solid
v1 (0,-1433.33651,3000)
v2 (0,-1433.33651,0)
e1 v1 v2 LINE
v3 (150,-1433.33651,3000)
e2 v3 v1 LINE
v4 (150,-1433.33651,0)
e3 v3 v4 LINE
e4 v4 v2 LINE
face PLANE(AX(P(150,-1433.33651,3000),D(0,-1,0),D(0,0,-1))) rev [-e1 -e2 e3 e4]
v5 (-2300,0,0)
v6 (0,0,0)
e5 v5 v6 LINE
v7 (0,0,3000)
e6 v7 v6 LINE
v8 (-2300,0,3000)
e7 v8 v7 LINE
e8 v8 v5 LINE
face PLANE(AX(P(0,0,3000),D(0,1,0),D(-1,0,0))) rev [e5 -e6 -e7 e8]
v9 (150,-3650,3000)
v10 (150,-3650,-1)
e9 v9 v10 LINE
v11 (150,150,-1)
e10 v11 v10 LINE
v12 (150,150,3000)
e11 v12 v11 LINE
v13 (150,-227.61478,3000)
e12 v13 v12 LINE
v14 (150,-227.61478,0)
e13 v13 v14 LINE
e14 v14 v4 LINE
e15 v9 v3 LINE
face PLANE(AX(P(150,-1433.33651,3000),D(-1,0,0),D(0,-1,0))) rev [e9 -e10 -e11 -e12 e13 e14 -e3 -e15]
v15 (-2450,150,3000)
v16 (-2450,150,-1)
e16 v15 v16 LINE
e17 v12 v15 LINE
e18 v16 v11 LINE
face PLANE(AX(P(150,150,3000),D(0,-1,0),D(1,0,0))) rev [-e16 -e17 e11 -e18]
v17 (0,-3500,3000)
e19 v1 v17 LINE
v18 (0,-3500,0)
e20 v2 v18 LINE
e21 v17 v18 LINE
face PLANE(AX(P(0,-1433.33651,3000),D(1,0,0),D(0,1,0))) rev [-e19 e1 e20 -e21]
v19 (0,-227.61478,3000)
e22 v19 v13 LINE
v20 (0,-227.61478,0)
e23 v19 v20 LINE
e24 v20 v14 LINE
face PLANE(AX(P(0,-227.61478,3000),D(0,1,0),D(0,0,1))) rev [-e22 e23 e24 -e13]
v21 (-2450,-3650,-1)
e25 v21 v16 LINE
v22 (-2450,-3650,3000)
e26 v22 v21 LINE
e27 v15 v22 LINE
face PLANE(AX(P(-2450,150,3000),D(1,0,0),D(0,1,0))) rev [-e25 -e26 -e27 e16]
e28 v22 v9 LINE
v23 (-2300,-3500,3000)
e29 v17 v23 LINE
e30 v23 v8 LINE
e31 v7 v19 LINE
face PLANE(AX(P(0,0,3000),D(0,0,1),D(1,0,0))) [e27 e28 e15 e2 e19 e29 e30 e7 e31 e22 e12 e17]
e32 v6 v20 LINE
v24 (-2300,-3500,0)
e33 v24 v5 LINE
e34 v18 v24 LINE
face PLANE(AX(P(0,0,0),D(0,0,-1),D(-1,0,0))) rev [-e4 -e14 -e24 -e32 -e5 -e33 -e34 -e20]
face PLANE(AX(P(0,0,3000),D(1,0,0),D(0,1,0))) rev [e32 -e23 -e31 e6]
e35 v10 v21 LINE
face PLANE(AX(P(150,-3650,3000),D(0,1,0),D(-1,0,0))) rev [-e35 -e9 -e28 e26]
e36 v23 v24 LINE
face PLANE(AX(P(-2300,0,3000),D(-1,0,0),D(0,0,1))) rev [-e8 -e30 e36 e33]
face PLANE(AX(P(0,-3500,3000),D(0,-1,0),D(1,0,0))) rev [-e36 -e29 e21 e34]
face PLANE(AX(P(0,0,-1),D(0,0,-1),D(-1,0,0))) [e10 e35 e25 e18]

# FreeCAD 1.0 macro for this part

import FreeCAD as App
import Part
import Sketcher

V = App.Vector


def add_polygon(sketch, points):
    """Adds a closed chain of lines whose ends are joined by coincident constraints."""
    first, n = sketch.GeometryCount, len(points)
    for a, b in zip(points, points[1:] + points[:1]):
        sketch.addGeometry(Part.LineSegment(App.Vector(*a, 0), App.Vector(*b, 0)), False)
    for i in range(n):
        sketch.addConstraint(Sketcher.Constraint("Coincident", first + i, 2, first + (i + 1) % n, 1))

doc = App.newDocument("Part")
body = doc.addObject("PartDesign::Body", "Body")

sketch1 = body.newObject("Sketcher::SketchObject", "Sketch")
sketch1.AttachmentSupport = (doc.getObject("XY_Plane"), [""])
sketch1.MapMode = "FlatFace"
add_polygon(sketch1, [(0, -228), (150, -228), (150, 150), (-2450, 150), (-2450, -3650), (150, -3650), (150, -1433), (0, -1433), (0, -3500), (-2300, -3500), (-2300, 0), (0, 0)])
sketch1.addConstraint([
    Sketcher.Constraint("Horizontal", 0),
    Sketcher.Constraint("Vertical", 1),
    Sketcher.Constraint("Horizontal", 2),
    Sketcher.Constraint("Vertical", 3),
    Sketcher.Constraint("Horizontal", 4),
    Sketcher.Constraint("Vertical", 5),
    Sketcher.Constraint("Horizontal", 6),
    Sketcher.Constraint("Vertical", 7),
    Sketcher.Constraint("Horizontal", 8),
    Sketcher.Constraint("Vertical", 9),
    Sketcher.Constraint("Horizontal", 10),
    Sketcher.Constraint("Vertical", 11),
    Sketcher.Constraint("Coincident", 10, 2, -1, 1),
    Sketcher.Constraint("PointOnObject", 6, 2, -2),
    Sketcher.Constraint("Vertical", 1, 2, 4, 2),
    Sketcher.Constraint("DistanceX", 0, 1, 0, 2, 150.0),
    Sketcher.Constraint("DistanceX", 2, 2, 2, 1, 2600.0),
    Sketcher.Constraint("DistanceX", 8, 2, 8, 1, 2300.0),
    Sketcher.Constraint("DistanceY", 3, 2, 3, 1, 3800.0),
    Sketcher.Constraint("DistanceY", 9, 1, 9, 2, 3500.0),
    Sketcher.Constraint("DistanceY", -1, 1, 1, 2, 150.0),
    Sketcher.Constraint("DistanceY", 1, 1, 1, 2, 377.61478),
    Sketcher.Constraint("DistanceY", 5, 1, 5, 2, 2216.66349),
])
pad1 = body.newObject("PartDesign::Pad", "Pad")
pad1.Profile = sketch1
pad1.Length = 3000

sketch2 = body.newObject("Sketcher::SketchObject", "Sketch001")
sketch2.AttachmentSupport = (doc.getObject("XY_Plane"), [""])
sketch2.MapMode = "FlatFace"
add_polygon(sketch2, [(150, 150), (150, -3650), (-2450, -3650), (-2450, 150)])
sketch2.addConstraint([
    Sketcher.Constraint("Vertical", 0),
    Sketcher.Constraint("Horizontal", 1),
    Sketcher.Constraint("Vertical", 2),
    Sketcher.Constraint("Horizontal", 3),
    Sketcher.Constraint("DistanceX", 1, 2, 1, 1, 2600.0),
    Sketcher.Constraint("DistanceY", 0, 2, 0, 1, 3800.0),
    Sketcher.Constraint("DistanceX", -1, 1, 0, 2, 150.0),
    Sketcher.Constraint("DistanceY", 0, 2, -1, 1, 3650.0),
])
pad2 = body.newObject("PartDesign::Pad", "Pad001")
pad2.Profile = sketch2
pad2.Length = 1
pad2.Reversed = True

doc.recompute()
